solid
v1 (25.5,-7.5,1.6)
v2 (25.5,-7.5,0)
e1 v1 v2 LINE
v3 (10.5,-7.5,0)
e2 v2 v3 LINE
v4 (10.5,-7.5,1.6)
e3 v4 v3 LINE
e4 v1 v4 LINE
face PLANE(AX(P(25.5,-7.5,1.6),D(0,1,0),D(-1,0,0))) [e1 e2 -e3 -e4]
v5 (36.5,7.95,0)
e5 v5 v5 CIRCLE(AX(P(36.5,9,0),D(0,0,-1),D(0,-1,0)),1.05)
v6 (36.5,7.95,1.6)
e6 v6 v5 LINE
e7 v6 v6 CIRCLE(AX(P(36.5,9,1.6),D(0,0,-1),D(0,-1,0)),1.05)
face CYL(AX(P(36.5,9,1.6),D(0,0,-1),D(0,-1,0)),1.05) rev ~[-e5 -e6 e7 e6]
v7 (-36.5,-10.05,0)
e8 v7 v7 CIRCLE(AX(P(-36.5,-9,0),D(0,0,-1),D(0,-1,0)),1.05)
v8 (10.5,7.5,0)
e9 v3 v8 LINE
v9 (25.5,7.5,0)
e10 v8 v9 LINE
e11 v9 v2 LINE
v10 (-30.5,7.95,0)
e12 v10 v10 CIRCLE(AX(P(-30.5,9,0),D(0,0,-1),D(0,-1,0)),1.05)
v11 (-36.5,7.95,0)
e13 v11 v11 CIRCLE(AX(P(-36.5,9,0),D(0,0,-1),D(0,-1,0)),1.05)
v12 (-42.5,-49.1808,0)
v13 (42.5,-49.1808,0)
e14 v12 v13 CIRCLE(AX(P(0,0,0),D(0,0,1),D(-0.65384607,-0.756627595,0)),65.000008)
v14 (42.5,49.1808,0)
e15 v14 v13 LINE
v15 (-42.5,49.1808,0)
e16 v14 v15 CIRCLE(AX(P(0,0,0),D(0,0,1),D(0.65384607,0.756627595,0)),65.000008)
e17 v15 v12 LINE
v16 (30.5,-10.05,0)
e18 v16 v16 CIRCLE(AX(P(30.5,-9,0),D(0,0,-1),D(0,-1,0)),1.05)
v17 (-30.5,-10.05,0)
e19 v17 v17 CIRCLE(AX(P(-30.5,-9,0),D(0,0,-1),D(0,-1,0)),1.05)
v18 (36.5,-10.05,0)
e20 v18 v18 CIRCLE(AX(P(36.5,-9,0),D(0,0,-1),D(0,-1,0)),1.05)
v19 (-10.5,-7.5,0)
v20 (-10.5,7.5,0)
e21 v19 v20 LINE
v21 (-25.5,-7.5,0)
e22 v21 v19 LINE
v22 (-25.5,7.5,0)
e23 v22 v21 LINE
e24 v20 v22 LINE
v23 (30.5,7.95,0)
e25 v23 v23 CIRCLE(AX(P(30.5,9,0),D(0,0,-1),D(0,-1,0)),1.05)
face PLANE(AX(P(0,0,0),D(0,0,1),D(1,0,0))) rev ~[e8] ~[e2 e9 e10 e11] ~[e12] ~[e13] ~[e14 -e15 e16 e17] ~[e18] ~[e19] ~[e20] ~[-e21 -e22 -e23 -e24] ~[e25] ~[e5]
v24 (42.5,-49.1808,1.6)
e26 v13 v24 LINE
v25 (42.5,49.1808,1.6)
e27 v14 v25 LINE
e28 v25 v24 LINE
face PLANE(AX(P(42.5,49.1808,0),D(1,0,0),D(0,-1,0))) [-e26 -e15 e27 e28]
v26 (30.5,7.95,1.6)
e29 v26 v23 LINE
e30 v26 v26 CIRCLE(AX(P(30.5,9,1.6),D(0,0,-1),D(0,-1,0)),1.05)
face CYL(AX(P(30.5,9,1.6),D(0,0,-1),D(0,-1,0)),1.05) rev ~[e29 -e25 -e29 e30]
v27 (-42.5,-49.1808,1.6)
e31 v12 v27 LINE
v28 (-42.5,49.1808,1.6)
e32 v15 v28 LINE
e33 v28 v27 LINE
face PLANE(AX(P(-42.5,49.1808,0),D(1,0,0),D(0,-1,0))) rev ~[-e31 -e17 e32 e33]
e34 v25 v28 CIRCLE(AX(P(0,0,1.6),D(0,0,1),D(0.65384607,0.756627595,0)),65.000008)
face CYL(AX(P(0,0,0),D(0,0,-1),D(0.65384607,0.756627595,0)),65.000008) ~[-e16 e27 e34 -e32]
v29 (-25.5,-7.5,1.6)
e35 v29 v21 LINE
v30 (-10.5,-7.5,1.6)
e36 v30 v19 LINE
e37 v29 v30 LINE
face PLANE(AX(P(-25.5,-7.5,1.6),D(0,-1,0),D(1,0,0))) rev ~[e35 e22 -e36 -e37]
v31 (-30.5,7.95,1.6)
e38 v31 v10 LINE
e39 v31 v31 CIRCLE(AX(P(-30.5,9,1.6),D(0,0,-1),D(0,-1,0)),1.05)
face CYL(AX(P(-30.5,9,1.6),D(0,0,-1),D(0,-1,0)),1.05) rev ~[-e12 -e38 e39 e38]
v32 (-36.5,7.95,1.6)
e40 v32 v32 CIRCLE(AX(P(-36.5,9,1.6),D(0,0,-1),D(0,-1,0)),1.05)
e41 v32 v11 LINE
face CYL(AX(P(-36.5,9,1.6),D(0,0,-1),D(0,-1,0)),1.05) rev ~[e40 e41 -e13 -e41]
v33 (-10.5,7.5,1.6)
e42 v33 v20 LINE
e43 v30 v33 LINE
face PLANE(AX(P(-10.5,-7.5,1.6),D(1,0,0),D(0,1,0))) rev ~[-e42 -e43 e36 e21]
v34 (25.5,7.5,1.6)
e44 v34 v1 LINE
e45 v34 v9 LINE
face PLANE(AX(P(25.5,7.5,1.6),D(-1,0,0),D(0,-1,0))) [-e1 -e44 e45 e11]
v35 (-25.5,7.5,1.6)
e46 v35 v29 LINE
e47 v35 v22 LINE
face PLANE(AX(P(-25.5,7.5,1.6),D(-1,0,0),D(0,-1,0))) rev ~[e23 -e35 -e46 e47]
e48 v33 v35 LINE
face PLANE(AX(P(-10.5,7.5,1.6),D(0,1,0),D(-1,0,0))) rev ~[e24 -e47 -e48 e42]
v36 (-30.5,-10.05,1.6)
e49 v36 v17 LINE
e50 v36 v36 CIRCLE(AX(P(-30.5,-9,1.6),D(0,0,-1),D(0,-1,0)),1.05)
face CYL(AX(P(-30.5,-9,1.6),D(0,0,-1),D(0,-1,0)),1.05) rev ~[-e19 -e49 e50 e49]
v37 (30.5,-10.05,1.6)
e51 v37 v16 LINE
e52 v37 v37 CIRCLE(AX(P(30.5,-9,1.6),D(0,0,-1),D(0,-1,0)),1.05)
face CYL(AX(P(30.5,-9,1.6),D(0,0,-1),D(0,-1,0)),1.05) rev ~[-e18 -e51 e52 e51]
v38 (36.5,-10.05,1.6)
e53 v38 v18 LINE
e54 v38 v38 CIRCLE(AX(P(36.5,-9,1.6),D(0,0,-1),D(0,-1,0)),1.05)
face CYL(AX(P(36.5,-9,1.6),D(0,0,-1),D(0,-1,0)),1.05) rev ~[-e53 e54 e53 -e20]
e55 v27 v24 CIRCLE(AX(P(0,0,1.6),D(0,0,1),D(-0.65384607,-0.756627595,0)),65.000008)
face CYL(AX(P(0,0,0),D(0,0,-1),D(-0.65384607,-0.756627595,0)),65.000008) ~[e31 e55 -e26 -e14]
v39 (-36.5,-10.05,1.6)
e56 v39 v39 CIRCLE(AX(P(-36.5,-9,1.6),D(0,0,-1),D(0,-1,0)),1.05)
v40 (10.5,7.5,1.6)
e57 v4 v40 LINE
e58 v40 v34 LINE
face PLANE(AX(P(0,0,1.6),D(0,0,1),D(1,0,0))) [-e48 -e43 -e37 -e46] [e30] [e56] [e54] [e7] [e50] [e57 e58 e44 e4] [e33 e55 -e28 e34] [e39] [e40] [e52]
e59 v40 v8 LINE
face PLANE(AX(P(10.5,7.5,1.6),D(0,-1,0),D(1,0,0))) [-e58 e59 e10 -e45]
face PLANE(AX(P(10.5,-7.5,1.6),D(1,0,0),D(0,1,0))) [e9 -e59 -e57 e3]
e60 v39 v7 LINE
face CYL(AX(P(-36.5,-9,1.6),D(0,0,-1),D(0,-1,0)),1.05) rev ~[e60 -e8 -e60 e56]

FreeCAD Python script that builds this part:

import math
import FreeCAD as App
import Part
import Sketcher
Q = App.Units.Quantity


def add_polygon(sketch, points):
    """Adds a closed chain of lines whose ends are joined by coincident constraints."""
    first, n = sketch.GeometryCount, len(points)
    for a, b in zip(points, points[1:] + points[:1]):
        sketch.addGeometry(Part.LineSegment(App.Vector(*a, 0), App.Vector(*b, 0)), False)
    for i in range(n):
        sketch.addConstraint(Sketcher.Constraint("Coincident", first + i, 2, first + (i + 1) % n, 1))

doc = App.newDocument("Part")
body = doc.addObject("PartDesign::Body", "Body")

sketch1 = doc.addObject("Sketcher::SketchObject", "Sketch")
body.addObject(sketch1)
sketch1.AttachmentSupport = (doc.XY_Plane, [""])
sketch1.MapMode = "FlatFace"
sketch1.addGeometry(Part.LineSegment(App.Vector(42, -49, 0), App.Vector(42, 49, 0)), False)
sketch1.addGeometry(Part.ArcOfCircle(Part.Circle(App.Vector(0, 0, 0), App.Vector(0, 0, 1), 65), math.radians(49), math.radians(131)), False)
sketch1.addGeometry(Part.LineSegment(App.Vector(-42, 49, 0), App.Vector(-42, -49, 0)), False)
sketch1.addGeometry(Part.ArcOfCircle(Part.Circle(App.Vector(0, 0, 0), App.Vector(0, 0, 1), 65), math.radians(-131), math.radians(-49)), False)
sketch1.addConstraint(Sketcher.Constraint("Coincident", 0, 2, 1, 1))
sketch1.addConstraint(Sketcher.Constraint("Coincident", 1, 2, 2, 1))
sketch1.addConstraint(Sketcher.Constraint("Coincident", 2, 2, 3, 1))
sketch1.addConstraint(Sketcher.Constraint("Coincident", 3, 2, 0, 1))
sketch1.addConstraint(Sketcher.Constraint("Vertical", 0))
sketch1.addConstraint(Sketcher.Constraint("Vertical", 2))
sketch1.addConstraint(Sketcher.Constraint("Coincident", 1, 3, -1, 1))
sketch1.addConstraint(Sketcher.Constraint("Coincident", 3, 3, -1, 1))
sketch1.addConstraint(Sketcher.Constraint("Equal", 1, 3))
sketch1.addConstraint(Sketcher.Constraint("Horizontal", 0, 2, 1, 2))
sketch1.addConstraint(Sketcher.Constraint("Radius", 1, Q("65 mm")))
sketch1.addConstraint(Sketcher.Constraint("DistanceX", 1, 2, 0, 2, Q("85 mm")))
pad1 = doc.addObject("PartDesign::Pad", "Pad")
body.addObject(pad1)
pad1.Profile = sketch1
pad1.Length = 1.6

sketch2 = doc.addObject("Sketcher::SketchObject", "Sketch001")
body.addObject(sketch2)
sketch2.AttachmentSupport = (doc.XY_Plane, [""])
sketch2.MapMode = "FlatFace"
sketch2.AttachmentOffset = App.Placement(App.Vector(0, 0, 1.6), App.Rotation())
sketch2.addGeometry(Part.Circle(App.Vector(-36.5, 9, 0), App.Vector(0, 0, 1), 1.1), False)
sketch2.addGeometry(Part.Circle(App.Vector(-36.5, -9, 0), App.Vector(0, 0, 1), 1.1), False)
sketch2.addGeometry(Part.Circle(App.Vector(-30.5, 9, 0), App.Vector(0, 0, 1), 1.1), False)
sketch2.addGeometry(Part.Circle(App.Vector(-30.5, -9, 0), App.Vector(0, 0, 1), 1.1), False)
sketch2.addGeometry(Part.Circle(App.Vector(36.5, 9, 0), App.Vector(0, 0, 1), 1.1), False)
sketch2.addGeometry(Part.Circle(App.Vector(36.5, -9, 0), App.Vector(0, 0, 1), 1.1), False)
sketch2.addGeometry(Part.Circle(App.Vector(30.5, -9, 0), App.Vector(0, 0, 1), 1.1), False)
sketch2.addGeometry(Part.Circle(App.Vector(30.5, 9, 0), App.Vector(0, 0, 1), 1.1), False)
sketch2.addConstraint(Sketcher.Constraint("Equal", 0, 1))
sketch2.addConstraint(Sketcher.Constraint("Equal", 1, 2))
sketch2.addConstraint(Sketcher.Constraint("Equal", 2, 3))
sketch2.addConstraint(Sketcher.Constraint("Equal", 3, 4))
sketch2.addConstraint(Sketcher.Constraint("Equal", 4, 5))
sketch2.addConstraint(Sketcher.Constraint("Equal", 5, 6))
sketch2.addConstraint(Sketcher.Constraint("Equal", 6, 7))
sketch2.addConstraint(Sketcher.Constraint("Symmetric", 1, 3, 4, 3, -1, 1))
sketch2.addConstraint(Sketcher.Constraint("Symmetric", 0, 3, 5, 3, -1, 1))
sketch2.addConstraint(Sketcher.Constraint("Symmetric", 2, 3, 6, 3, -1, 1))
sketch2.addConstraint(Sketcher.Constraint("Symmetric", 3, 3, 7, 3, -1, 1))
sketch2.addConstraint(Sketcher.Constraint("Symmetric", 0, 3, 4, 3, -2))
sketch2.addConstraint(Sketcher.Constraint("Symmetric", 3, 3, 6, 3, -2))
sketch2.addConstraint(Sketcher.Constraint("Horizontal", 0, 3, 2, 3))
sketch2.addConstraint(Sketcher.Constraint("Diameter", 0, Q("2.1 mm")))
sketch2.addConstraint(Sketcher.Constraint("DistanceY", -1, 1, 0, 3, Q("9 mm")))
sketch2.addConstraint(Sketcher.Constraint("DistanceX", 0, 3, 2, 3, Q("6 mm")))
sketch2.addConstraint(Sketcher.Constraint("DistanceX", 2, 3, 4, 3, Q("67 mm")))
doc.recompute()
hole = doc.addObject("PartDesign::Hole", "Hole")
body.addObject(hole)
hole.Profile = sketch2
hole.ThreadType = "None"
hole.Diameter = 2.1
hole.DepthType = "ThroughAll"

sketch3 = doc.addObject("Sketcher::SketchObject", "Sketch002")
body.addObject(sketch3)
sketch3.AttachmentSupport = (doc.XY_Plane, [""])
sketch3.MapMode = "FlatFace"
sketch3.AttachmentOffset = App.Placement(App.Vector(0, 0, 1.6), App.Rotation())
add_polygon(sketch3, [(-10, -8), (-10, 8), (-26, 8), (-26, -8)])
add_polygon(sketch3, [(26, 8), (10, 8), (10, -8), (26, -8)])
sketch3.addConstraint(Sketcher.Constraint("Vertical", 0))
sketch3.addConstraint(Sketcher.Constraint("Horizontal", 1))
sketch3.addConstraint(Sketcher.Constraint("Vertical", 2))
sketch3.addConstraint(Sketcher.Constraint("Horizontal", 3))
sketch3.addConstraint(Sketcher.Constraint("Horizontal", 4))
sketch3.addConstraint(Sketcher.Constraint("Vertical", 5))
sketch3.addConstraint(Sketcher.Constraint("Horizontal", 6))
sketch3.addConstraint(Sketcher.Constraint("Vertical", 7))
sketch3.addConstraint(Sketcher.Constraint("Symmetric", 3, 2, 4, 2, -1, 1))
sketch3.addConstraint(Sketcher.Constraint("Symmetric", 1, 2, 6, 2, -1, 1))
sketch3.addConstraint(Sketcher.Constraint("Horizontal", 1, 2, 4, 2))
sketch3.addConstraint(Sketcher.Constraint("Equal", 6, 0))
sketch3.addConstraint(Sketcher.Constraint("DistanceX", 1, 2, 1, 1, Q("15 mm")))
sketch3.addConstraint(Sketcher.Constraint("DistanceX", 0, 2, 4, 2, Q("21 mm")))
pocket1 = doc.addObject("PartDesign::Pocket", "Pocket")
body.addObject(pocket1)
pocket1.Profile = sketch3
pocket1.Length = 1.6

doc.recompute()
